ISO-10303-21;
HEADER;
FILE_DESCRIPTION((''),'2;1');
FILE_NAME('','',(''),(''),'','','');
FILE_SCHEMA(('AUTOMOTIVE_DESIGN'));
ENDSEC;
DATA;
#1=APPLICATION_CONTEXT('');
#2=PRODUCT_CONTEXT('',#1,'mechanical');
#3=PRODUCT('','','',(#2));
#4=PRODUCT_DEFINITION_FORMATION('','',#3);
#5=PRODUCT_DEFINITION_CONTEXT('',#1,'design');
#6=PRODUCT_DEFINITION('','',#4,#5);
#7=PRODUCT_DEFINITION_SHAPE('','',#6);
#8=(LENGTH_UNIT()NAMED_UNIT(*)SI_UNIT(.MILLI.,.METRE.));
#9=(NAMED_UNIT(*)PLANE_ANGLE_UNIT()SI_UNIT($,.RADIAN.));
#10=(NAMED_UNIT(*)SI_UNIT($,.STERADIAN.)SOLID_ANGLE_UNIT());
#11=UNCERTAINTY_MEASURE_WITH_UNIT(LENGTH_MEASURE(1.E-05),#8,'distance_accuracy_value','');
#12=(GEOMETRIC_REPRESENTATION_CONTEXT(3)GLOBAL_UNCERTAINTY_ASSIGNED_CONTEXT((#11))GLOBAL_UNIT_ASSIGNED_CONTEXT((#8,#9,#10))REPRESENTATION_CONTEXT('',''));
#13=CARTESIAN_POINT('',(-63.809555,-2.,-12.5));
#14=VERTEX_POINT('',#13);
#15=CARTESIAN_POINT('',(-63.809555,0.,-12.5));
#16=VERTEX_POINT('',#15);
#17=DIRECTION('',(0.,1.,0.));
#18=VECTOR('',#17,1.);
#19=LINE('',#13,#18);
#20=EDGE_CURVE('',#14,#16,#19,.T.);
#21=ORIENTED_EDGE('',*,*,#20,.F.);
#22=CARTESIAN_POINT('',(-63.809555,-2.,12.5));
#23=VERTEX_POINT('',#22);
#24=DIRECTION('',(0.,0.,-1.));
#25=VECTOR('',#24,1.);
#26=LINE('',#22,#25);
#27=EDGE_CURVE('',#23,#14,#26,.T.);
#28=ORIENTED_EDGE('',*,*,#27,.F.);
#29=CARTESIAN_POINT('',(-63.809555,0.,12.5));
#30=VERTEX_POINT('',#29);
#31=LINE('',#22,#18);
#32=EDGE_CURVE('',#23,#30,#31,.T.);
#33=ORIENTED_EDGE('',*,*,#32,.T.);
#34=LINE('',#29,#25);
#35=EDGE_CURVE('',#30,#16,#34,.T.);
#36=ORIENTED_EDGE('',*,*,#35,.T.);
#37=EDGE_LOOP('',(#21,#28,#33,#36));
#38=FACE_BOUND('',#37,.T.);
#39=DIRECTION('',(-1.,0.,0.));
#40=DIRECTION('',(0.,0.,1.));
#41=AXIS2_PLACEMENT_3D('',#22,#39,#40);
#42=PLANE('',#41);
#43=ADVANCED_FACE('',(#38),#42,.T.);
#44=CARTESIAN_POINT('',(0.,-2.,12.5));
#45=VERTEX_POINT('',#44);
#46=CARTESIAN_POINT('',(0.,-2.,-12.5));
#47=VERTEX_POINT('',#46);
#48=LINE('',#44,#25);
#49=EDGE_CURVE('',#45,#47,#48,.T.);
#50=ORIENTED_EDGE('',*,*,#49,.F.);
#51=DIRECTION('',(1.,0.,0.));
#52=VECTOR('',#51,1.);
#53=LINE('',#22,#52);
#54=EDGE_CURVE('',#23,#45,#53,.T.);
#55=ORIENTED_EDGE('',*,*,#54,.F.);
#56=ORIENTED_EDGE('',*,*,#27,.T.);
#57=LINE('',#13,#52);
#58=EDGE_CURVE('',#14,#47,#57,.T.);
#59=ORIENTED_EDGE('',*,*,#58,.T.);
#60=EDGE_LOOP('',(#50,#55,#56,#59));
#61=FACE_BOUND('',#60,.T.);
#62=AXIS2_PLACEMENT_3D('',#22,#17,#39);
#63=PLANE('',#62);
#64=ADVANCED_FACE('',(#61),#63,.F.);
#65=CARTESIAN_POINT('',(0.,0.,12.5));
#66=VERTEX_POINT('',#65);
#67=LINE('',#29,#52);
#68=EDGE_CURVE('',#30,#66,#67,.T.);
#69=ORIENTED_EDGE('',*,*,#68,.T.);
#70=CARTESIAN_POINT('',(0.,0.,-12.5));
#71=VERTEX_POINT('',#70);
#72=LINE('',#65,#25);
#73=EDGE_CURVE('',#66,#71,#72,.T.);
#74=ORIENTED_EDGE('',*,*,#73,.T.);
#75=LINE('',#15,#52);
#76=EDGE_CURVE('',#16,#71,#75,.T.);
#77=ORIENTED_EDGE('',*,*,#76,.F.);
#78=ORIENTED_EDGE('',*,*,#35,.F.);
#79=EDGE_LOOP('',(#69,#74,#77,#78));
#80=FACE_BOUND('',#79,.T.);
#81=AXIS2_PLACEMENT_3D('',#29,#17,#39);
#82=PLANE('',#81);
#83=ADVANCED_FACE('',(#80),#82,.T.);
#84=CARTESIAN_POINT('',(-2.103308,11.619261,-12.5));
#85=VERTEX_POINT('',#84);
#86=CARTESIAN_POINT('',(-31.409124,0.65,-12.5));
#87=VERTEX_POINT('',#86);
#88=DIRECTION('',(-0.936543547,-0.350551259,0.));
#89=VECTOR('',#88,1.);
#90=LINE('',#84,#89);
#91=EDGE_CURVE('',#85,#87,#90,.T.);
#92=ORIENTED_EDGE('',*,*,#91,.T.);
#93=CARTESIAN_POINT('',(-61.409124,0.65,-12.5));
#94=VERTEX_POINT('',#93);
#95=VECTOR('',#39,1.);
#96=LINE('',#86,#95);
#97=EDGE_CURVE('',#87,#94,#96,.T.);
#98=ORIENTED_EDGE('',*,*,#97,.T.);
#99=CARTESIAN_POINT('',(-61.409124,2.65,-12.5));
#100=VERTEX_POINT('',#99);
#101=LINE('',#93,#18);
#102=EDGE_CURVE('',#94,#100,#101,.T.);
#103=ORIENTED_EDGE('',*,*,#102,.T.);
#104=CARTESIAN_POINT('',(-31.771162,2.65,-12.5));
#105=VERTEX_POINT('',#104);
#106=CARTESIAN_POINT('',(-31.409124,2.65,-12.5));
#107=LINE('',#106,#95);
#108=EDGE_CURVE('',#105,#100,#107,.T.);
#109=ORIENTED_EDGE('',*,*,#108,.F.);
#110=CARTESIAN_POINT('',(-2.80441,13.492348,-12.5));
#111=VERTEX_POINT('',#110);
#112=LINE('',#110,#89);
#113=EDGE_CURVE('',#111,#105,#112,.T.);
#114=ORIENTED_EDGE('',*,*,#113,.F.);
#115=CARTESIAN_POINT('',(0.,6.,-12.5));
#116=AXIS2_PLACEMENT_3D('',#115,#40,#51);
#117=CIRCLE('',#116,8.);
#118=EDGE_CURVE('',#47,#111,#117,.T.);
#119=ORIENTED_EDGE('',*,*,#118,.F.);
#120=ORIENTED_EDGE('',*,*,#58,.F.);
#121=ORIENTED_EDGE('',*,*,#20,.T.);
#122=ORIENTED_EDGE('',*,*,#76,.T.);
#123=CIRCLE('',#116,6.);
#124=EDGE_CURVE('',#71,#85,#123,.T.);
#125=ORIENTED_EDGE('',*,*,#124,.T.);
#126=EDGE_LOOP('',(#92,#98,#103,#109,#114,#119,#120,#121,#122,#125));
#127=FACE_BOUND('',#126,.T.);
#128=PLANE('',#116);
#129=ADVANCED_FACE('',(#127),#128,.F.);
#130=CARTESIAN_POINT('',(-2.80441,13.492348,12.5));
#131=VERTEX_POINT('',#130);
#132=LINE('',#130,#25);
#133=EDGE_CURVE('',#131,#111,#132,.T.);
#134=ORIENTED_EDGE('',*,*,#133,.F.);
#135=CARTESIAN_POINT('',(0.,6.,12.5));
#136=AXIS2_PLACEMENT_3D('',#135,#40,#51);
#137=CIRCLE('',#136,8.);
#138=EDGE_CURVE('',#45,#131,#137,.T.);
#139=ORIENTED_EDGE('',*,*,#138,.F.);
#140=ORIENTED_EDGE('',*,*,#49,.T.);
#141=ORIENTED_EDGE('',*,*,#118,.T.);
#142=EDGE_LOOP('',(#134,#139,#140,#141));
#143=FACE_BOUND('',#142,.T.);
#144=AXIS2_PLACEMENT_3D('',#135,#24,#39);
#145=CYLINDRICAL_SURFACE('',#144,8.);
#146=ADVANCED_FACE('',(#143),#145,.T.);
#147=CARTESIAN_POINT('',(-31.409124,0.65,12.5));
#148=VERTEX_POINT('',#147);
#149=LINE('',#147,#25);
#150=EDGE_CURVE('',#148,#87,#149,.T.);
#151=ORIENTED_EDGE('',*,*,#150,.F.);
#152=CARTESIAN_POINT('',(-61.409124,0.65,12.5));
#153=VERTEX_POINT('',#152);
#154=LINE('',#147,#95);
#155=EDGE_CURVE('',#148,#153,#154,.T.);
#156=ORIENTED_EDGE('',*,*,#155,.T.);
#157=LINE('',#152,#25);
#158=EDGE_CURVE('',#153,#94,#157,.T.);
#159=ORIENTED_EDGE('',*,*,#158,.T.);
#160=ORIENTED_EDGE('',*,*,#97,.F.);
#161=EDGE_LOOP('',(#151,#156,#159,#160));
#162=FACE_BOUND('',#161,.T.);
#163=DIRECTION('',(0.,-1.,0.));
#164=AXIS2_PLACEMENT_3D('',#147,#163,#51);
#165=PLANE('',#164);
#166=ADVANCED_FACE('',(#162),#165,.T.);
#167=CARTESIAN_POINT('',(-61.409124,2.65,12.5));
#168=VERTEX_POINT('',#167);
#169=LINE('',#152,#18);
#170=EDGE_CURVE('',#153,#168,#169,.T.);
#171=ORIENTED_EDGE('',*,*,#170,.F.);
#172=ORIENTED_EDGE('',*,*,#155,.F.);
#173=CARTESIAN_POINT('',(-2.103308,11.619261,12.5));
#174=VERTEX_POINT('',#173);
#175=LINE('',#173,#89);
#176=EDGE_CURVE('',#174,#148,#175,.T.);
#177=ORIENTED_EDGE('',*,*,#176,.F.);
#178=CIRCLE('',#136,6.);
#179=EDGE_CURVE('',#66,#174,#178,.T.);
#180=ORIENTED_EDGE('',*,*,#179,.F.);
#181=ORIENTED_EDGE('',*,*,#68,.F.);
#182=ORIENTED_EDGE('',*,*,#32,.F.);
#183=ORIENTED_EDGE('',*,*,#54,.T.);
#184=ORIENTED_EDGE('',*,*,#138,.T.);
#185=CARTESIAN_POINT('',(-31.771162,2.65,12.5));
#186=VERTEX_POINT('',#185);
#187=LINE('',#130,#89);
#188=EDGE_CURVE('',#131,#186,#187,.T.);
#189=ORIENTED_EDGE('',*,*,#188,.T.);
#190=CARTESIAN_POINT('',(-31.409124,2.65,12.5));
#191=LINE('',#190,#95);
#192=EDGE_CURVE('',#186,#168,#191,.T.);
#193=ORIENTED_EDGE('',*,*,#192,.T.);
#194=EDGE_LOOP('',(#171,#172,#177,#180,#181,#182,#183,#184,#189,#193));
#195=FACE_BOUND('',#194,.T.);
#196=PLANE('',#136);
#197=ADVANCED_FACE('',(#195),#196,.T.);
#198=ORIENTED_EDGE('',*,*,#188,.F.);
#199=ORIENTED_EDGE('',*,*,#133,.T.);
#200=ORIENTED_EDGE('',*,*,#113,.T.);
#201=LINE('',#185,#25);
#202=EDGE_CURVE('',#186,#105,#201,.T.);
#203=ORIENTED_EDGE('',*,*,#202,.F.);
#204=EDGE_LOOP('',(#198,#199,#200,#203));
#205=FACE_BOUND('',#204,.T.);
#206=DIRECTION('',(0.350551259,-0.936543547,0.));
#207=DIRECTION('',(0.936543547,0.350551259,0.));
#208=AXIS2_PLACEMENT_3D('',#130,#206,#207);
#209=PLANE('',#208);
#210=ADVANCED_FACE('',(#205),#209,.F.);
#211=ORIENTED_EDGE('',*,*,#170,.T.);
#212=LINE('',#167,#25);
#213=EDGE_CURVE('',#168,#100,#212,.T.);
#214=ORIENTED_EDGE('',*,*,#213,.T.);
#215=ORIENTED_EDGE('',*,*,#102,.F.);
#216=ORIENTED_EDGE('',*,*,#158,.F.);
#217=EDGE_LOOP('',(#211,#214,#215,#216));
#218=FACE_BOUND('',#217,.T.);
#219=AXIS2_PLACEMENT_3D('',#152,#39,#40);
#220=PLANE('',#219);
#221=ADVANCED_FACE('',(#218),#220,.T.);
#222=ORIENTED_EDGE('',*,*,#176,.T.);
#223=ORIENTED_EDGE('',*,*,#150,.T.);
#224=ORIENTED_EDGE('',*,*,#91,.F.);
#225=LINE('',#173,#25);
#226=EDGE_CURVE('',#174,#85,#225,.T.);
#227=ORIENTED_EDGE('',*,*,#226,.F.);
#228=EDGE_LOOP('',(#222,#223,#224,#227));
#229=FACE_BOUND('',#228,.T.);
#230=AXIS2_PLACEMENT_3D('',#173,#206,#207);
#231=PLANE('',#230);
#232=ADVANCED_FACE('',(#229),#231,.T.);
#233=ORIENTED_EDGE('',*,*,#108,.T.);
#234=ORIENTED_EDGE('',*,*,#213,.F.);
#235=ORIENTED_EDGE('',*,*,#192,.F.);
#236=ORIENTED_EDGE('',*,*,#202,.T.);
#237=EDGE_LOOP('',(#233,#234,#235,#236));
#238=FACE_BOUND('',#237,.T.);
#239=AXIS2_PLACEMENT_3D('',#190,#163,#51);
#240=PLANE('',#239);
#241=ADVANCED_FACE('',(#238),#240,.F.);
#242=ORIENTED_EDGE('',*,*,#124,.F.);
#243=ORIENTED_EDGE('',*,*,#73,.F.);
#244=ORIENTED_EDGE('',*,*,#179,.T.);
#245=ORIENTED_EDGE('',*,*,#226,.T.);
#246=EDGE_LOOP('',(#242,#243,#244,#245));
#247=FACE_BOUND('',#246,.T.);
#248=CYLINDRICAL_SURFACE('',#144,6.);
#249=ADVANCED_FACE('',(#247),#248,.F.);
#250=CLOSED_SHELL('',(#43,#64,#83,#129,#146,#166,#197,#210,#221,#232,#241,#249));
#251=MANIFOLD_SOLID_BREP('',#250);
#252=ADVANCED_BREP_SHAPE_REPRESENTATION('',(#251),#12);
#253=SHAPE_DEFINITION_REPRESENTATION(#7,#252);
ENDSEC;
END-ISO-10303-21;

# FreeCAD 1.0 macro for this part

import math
import FreeCAD as App
import Part
import Sketcher

doc = App.newDocument("Part")
params = doc.addObject("Spreadsheet::Sheet", "Params")
for row, (alias, value) in enumerate([
    ("sketch1_radius", "8 mm"),
    ("sketch1_radius2", "6 mm"),
    ("sketch1_width", "30 mm"),
    ("pad1_length", "25 mm"),
], start=1):
    params.set(f"A{row}", alias)
    params.set(f"B{row}", "=" + value)
    params.setAlias(f"B{row}", alias)

body = doc.addObject("PartDesign::Body", "Body")

# Sketch on XY plane
sketch1 = body.newObject("Sketcher::SketchObject", "Sketch")
sketch1.AttachmentSupport = (doc.getObject("XY_Plane"), [""])
sketch1.MapMode = "FlatFace"
sketch1.addGeometry([
    Part.LineSegment(App.Vector(0, 0, 0), App.Vector(-63.8, 0, 0)),  # 0
    Part.LineSegment(App.Vector(-63.8, 0, 0), App.Vector(-63.8, -2, 0)),  # 1
    Part.LineSegment(App.Vector(-63.8, -2, 0), App.Vector(0, -2, 0)),  # 2
    Part.ArcOfCircle(Part.Circle(App.Vector(0, 6, 0), App.Vector(0, 0, 1), 8), math.radians(-90), math.radians(111)),  # 3
    Part.LineSegment(App.Vector(-2.8, 13.5, 0), App.Vector(-31.8, 2.6, 0)),  # 4
    Part.LineSegment(App.Vector(-31.8, 2.6, 0), App.Vector(-61.4, 2.6, 0)),  # 5
    Part.LineSegment(App.Vector(-61.4, 2.6, 0), App.Vector(-61.4, 0.7, 0)),  # 6
    Part.LineSegment(App.Vector(-61.4, 0.7, 0), App.Vector(-31.4, 0.7, 0)),  # 7
    Part.LineSegment(App.Vector(-31.4, 0.7, 0), App.Vector(-2.1, 11.6, 0)),  # 8
    Part.ArcOfCircle(Part.Circle(App.Vector(0, 6, 0), App.Vector(0, 0, 1), 6), math.radians(-90), math.radians(111)),  # 9
], False)
sketch1.addConstraint([
    Sketcher.Constraint("Coincident", 0, 2, 1, 1),
    Sketcher.Constraint("Coincident", 1, 2, 2, 1),
    Sketcher.Constraint("Tangent", 2, 2, 3, 1),
    Sketcher.Constraint("Tangent", 3, 2, 4, 1),
    Sketcher.Constraint("Coincident", 4, 2, 5, 1),
    Sketcher.Constraint("Coincident", 5, 2, 6, 1),
    Sketcher.Constraint("Coincident", 6, 2, 7, 1),
    Sketcher.Constraint("Coincident", 7, 2, 8, 1),
    Sketcher.Constraint("Tangent", 8, 2, 9, 2),
    Sketcher.Constraint("Tangent", 9, 1, 0, 1),
    Sketcher.Constraint("Horizontal", 0),
    Sketcher.Constraint("Vertical", 1),
    Sketcher.Constraint("Horizontal", 2),
    Sketcher.Constraint("Horizontal", 5),
    Sketcher.Constraint("Vertical", 6),
    Sketcher.Constraint("Horizontal", 7),
    Sketcher.Constraint("Coincident", 9, 1, -1, 1),
    Sketcher.Constraint("Coincident", 9, 3, 3, 3),
    Sketcher.Constraint("Parallel", 4, 8),
    Sketcher.Constraint("Equal", 1, 6),
    Sketcher.Constraint("Radius", 3, 8.0),
    Sketcher.Constraint("Radius", 9, 6.0),
    Sketcher.Constraint("DistanceX", 7, 1, 7, 2, 30.0),
    Sketcher.Constraint("DistanceY", -1, 1, 4, 2, 2.65),
    Sketcher.Constraint("DistanceX", 5, 2, 5, 1, 29.637962),
    Sketcher.Constraint("DistanceX", 0, 2, 0, 1, 63.809555),
])
sketch1.setExpression("Constraints[20]", "Params.sketch1_radius")
sketch1.setExpression("Constraints[21]", "Params.sketch1_radius2")
sketch1.setExpression("Constraints[22]", "Params.sketch1_width")
pad1 = body.newObject("PartDesign::Pad", "Pad")
pad1.Profile = sketch1
pad1.setExpression("Length", "Params.pad1_length")
pad1.Midplane = True

doc.recompute()
